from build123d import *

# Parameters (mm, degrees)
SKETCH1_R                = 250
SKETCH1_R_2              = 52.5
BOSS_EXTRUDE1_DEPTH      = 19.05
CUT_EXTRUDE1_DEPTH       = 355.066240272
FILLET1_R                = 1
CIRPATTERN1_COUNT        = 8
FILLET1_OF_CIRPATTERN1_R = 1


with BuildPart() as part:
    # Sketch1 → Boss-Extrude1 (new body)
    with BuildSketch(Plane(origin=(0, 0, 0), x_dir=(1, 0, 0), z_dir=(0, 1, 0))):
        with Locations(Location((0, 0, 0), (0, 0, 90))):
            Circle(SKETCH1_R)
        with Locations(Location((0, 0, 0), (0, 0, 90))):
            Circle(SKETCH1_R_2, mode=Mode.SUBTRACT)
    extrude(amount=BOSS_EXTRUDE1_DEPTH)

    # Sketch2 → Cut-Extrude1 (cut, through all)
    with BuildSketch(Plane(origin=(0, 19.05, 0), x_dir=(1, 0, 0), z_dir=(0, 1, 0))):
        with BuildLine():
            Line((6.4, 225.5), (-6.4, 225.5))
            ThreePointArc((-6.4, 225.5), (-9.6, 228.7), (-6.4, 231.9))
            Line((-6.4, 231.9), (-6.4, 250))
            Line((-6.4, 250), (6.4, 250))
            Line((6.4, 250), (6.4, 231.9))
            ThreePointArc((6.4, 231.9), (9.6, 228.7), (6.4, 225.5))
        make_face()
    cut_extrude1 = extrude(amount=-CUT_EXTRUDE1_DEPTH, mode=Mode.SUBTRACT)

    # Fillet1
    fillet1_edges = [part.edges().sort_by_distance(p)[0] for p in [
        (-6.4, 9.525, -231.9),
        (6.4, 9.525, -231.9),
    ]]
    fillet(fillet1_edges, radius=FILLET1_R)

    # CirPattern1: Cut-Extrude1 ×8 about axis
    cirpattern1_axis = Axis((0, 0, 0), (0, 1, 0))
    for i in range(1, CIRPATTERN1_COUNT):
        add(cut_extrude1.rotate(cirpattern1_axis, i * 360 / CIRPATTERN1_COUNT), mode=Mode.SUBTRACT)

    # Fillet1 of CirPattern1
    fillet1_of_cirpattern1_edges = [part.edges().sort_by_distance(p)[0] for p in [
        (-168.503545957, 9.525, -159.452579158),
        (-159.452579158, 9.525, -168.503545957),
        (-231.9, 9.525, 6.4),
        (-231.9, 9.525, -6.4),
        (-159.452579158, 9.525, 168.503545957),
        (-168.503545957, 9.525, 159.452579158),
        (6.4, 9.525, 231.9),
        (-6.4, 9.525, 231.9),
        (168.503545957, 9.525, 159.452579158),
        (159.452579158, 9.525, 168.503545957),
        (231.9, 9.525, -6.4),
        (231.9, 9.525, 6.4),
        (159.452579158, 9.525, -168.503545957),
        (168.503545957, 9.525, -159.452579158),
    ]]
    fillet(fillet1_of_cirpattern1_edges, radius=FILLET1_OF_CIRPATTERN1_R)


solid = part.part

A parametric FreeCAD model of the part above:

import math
import FreeCAD as App
import Part
import Sketcher

V = App.Vector
Q = App.Units.Quantity


def edges_at(feature, points):
    """Names of the edges that pass closest to the given points."""
    edges = feature.Shape.Edges
    near = lambda p: min(range(len(edges)), key=lambda i: edges[i].distToShape(Part.Vertex(*p))[0])
    return sorted({f"Edge{near(p) + 1}" for p in points})

doc = App.newDocument("Part")
body = doc.addObject("PartDesign::Body", "Body")

sketch1 = body.newObject("Sketcher::SketchObject", "Sketch")
sketch1.AttachmentSupport = (doc.getObject("XZ_Plane"), [""])
sketch1.MapMode = "FlatFace"
sketch1.addGeometry(Part.Circle(V(0, 0, 0), V(0, 0, 1), 250), False)
sketch1.addGeometry(Part.Circle(V(0, 0, 0), V(0, 0, 1), 52), False)
sketch1.addConstraint(Sketcher.Constraint("Coincident", 0, 3, -1, 1))
sketch1.addConstraint(Sketcher.Constraint("Coincident", 1, 3, -1, 1))
sketch1.addConstraint(Sketcher.Constraint("Diameter", 0, Q("500 mm")))
sketch1.addConstraint(Sketcher.Constraint("Diameter", 1, Q("105 mm")))
pad1 = body.newObject("PartDesign::Pad", "Pad")
pad1.Profile = sketch1
pad1.Length = 19.05
pad1.Reversed = True

sketch2 = body.newObject("Sketcher::SketchObject", "Sketch001")
sketch2.AttachmentSupport = (doc.getObject("XZ_Plane"), [""])
sketch2.MapMode = "FlatFace"
sketch2.AttachmentOffset = App.Placement(V(0, 0, -19.05), App.Rotation())
sketch2.addGeometry(Part.LineSegment(V(-6.4, -225.5, 0), V(6.4, -225.5, 0)), False)
sketch2.addGeometry(Part.ArcOfCircle(Part.Circle(V(6.4, -228.7, 0), V(0, 0, 1), 3.2), math.radians(-90), math.radians(90)), False)
sketch2.addGeometry(Part.LineSegment(V(6.4, -231.9, 0), V(6.4, -250, 0)), False)
sketch2.addGeometry(Part.LineSegment(V(6.4, -250, 0), V(-6.4, -250, 0)), False)
sketch2.addGeometry(Part.LineSegment(V(-6.4, -250, 0), V(-6.4, -231.9, 0)), False)
sketch2.addGeometry(Part.ArcOfCircle(Part.Circle(V(-6.4, -228.7, 0), V(0, 0, 1), 3.2), math.radians(90), math.radians(270)), False)
sketch2.addConstraint(Sketcher.Constraint("Tangent", 0, 2, 1, 2))
sketch2.addConstraint(Sketcher.Constraint("Coincident", 1, 1, 2, 1))
sketch2.addConstraint(Sketcher.Constraint("Coincident", 2, 2, 3, 1))
sketch2.addConstraint(Sketcher.Constraint("Coincident", 3, 2, 4, 1))
sketch2.addConstraint(Sketcher.Constraint("Coincident", 4, 2, 5, 2))
sketch2.addConstraint(Sketcher.Constraint("Tangent", 5, 1, 0, 1))
sketch2.addConstraint(Sketcher.Constraint("Horizontal", 0))
sketch2.addConstraint(Sketcher.Constraint("Vertical", 2))
sketch2.addConstraint(Sketcher.Constraint("Horizontal", 3))
sketch2.addConstraint(Sketcher.Constraint("Vertical", 4))
sketch2.addConstraint(Sketcher.Constraint("Equal", 1, 5))
sketch2.addConstraint(Sketcher.Constraint("Vertical", 0, 2, 1, 1))
sketch2.addConstraint(Sketcher.Constraint("Vertical", 5, 3, 3, 2))
sketch2.addConstraint(Sketcher.Constraint("Radius", 1, Q("3.2 mm")))
sketch2.addConstraint(Sketcher.Constraint("DistanceX", 0, 1, 0, 2, Q("12.8 mm")))
sketch2.addConstraint(Sketcher.Constraint("DistanceY", 2, 2, 2, 1, Q("18.1 mm")))
sketch2.addConstraint(Sketcher.Constraint("DistanceY", 2, 2, -1, 1, Q("250 mm")))
sketch2.addConstraint(Sketcher.Constraint("DistanceX", -1, 1, 1, 3, Q("6.4 mm")))
pocket1 = body.newObject("PartDesign::Pocket", "Pocket")
pocket1.Profile = sketch2
pocket1.Type = "ThroughAll"
pocket1.Reversed = True
doc.recompute()

fillet = body.newObject("PartDesign::Fillet", "Fillet")
fillet.Base = (pocket1, edges_at(pocket1, [(-6.4, 9.525, -231.9), (6.4, 9.525, -231.9)]))
fillet.Radius = 1
doc.recompute()

polarpattern = body.newObject("PartDesign::PolarPattern", "PolarPattern")
polarpattern.Originals = [pocket1]
polarpattern.Axis = (doc.getObject("Y_Axis"), [""])
polarpattern.Angle = 360
polarpattern.Occurrences = 8
body.Tip = polarpattern
doc.recompute()

fillet2 = body.newObject("PartDesign::Fillet", "Fillet001")
fillet2.Base = (polarpattern, edges_at(polarpattern, [
    (-168.504, 9.525, -159.453),
    (-159.453, 9.525, -168.504),
    (-231.9, 9.525, 6.4),
    (-231.9, 9.525, -6.4),
    (-159.453, 9.525, 168.504),
    (-168.504, 9.525, 159.453),
    (6.4, 9.525, 231.9),
    (-6.4, 9.525, 231.9),
    (168.504, 9.525, 159.453),
    (159.453, 9.525, 168.504),
    (231.9, 9.525, -6.4),
    (231.9, 9.525, 6.4),
    (159.453, 9.525, -168.504),
    (168.504, 9.525, -159.453),
]))
fillet2.Radius = 1

doc.recompute()
